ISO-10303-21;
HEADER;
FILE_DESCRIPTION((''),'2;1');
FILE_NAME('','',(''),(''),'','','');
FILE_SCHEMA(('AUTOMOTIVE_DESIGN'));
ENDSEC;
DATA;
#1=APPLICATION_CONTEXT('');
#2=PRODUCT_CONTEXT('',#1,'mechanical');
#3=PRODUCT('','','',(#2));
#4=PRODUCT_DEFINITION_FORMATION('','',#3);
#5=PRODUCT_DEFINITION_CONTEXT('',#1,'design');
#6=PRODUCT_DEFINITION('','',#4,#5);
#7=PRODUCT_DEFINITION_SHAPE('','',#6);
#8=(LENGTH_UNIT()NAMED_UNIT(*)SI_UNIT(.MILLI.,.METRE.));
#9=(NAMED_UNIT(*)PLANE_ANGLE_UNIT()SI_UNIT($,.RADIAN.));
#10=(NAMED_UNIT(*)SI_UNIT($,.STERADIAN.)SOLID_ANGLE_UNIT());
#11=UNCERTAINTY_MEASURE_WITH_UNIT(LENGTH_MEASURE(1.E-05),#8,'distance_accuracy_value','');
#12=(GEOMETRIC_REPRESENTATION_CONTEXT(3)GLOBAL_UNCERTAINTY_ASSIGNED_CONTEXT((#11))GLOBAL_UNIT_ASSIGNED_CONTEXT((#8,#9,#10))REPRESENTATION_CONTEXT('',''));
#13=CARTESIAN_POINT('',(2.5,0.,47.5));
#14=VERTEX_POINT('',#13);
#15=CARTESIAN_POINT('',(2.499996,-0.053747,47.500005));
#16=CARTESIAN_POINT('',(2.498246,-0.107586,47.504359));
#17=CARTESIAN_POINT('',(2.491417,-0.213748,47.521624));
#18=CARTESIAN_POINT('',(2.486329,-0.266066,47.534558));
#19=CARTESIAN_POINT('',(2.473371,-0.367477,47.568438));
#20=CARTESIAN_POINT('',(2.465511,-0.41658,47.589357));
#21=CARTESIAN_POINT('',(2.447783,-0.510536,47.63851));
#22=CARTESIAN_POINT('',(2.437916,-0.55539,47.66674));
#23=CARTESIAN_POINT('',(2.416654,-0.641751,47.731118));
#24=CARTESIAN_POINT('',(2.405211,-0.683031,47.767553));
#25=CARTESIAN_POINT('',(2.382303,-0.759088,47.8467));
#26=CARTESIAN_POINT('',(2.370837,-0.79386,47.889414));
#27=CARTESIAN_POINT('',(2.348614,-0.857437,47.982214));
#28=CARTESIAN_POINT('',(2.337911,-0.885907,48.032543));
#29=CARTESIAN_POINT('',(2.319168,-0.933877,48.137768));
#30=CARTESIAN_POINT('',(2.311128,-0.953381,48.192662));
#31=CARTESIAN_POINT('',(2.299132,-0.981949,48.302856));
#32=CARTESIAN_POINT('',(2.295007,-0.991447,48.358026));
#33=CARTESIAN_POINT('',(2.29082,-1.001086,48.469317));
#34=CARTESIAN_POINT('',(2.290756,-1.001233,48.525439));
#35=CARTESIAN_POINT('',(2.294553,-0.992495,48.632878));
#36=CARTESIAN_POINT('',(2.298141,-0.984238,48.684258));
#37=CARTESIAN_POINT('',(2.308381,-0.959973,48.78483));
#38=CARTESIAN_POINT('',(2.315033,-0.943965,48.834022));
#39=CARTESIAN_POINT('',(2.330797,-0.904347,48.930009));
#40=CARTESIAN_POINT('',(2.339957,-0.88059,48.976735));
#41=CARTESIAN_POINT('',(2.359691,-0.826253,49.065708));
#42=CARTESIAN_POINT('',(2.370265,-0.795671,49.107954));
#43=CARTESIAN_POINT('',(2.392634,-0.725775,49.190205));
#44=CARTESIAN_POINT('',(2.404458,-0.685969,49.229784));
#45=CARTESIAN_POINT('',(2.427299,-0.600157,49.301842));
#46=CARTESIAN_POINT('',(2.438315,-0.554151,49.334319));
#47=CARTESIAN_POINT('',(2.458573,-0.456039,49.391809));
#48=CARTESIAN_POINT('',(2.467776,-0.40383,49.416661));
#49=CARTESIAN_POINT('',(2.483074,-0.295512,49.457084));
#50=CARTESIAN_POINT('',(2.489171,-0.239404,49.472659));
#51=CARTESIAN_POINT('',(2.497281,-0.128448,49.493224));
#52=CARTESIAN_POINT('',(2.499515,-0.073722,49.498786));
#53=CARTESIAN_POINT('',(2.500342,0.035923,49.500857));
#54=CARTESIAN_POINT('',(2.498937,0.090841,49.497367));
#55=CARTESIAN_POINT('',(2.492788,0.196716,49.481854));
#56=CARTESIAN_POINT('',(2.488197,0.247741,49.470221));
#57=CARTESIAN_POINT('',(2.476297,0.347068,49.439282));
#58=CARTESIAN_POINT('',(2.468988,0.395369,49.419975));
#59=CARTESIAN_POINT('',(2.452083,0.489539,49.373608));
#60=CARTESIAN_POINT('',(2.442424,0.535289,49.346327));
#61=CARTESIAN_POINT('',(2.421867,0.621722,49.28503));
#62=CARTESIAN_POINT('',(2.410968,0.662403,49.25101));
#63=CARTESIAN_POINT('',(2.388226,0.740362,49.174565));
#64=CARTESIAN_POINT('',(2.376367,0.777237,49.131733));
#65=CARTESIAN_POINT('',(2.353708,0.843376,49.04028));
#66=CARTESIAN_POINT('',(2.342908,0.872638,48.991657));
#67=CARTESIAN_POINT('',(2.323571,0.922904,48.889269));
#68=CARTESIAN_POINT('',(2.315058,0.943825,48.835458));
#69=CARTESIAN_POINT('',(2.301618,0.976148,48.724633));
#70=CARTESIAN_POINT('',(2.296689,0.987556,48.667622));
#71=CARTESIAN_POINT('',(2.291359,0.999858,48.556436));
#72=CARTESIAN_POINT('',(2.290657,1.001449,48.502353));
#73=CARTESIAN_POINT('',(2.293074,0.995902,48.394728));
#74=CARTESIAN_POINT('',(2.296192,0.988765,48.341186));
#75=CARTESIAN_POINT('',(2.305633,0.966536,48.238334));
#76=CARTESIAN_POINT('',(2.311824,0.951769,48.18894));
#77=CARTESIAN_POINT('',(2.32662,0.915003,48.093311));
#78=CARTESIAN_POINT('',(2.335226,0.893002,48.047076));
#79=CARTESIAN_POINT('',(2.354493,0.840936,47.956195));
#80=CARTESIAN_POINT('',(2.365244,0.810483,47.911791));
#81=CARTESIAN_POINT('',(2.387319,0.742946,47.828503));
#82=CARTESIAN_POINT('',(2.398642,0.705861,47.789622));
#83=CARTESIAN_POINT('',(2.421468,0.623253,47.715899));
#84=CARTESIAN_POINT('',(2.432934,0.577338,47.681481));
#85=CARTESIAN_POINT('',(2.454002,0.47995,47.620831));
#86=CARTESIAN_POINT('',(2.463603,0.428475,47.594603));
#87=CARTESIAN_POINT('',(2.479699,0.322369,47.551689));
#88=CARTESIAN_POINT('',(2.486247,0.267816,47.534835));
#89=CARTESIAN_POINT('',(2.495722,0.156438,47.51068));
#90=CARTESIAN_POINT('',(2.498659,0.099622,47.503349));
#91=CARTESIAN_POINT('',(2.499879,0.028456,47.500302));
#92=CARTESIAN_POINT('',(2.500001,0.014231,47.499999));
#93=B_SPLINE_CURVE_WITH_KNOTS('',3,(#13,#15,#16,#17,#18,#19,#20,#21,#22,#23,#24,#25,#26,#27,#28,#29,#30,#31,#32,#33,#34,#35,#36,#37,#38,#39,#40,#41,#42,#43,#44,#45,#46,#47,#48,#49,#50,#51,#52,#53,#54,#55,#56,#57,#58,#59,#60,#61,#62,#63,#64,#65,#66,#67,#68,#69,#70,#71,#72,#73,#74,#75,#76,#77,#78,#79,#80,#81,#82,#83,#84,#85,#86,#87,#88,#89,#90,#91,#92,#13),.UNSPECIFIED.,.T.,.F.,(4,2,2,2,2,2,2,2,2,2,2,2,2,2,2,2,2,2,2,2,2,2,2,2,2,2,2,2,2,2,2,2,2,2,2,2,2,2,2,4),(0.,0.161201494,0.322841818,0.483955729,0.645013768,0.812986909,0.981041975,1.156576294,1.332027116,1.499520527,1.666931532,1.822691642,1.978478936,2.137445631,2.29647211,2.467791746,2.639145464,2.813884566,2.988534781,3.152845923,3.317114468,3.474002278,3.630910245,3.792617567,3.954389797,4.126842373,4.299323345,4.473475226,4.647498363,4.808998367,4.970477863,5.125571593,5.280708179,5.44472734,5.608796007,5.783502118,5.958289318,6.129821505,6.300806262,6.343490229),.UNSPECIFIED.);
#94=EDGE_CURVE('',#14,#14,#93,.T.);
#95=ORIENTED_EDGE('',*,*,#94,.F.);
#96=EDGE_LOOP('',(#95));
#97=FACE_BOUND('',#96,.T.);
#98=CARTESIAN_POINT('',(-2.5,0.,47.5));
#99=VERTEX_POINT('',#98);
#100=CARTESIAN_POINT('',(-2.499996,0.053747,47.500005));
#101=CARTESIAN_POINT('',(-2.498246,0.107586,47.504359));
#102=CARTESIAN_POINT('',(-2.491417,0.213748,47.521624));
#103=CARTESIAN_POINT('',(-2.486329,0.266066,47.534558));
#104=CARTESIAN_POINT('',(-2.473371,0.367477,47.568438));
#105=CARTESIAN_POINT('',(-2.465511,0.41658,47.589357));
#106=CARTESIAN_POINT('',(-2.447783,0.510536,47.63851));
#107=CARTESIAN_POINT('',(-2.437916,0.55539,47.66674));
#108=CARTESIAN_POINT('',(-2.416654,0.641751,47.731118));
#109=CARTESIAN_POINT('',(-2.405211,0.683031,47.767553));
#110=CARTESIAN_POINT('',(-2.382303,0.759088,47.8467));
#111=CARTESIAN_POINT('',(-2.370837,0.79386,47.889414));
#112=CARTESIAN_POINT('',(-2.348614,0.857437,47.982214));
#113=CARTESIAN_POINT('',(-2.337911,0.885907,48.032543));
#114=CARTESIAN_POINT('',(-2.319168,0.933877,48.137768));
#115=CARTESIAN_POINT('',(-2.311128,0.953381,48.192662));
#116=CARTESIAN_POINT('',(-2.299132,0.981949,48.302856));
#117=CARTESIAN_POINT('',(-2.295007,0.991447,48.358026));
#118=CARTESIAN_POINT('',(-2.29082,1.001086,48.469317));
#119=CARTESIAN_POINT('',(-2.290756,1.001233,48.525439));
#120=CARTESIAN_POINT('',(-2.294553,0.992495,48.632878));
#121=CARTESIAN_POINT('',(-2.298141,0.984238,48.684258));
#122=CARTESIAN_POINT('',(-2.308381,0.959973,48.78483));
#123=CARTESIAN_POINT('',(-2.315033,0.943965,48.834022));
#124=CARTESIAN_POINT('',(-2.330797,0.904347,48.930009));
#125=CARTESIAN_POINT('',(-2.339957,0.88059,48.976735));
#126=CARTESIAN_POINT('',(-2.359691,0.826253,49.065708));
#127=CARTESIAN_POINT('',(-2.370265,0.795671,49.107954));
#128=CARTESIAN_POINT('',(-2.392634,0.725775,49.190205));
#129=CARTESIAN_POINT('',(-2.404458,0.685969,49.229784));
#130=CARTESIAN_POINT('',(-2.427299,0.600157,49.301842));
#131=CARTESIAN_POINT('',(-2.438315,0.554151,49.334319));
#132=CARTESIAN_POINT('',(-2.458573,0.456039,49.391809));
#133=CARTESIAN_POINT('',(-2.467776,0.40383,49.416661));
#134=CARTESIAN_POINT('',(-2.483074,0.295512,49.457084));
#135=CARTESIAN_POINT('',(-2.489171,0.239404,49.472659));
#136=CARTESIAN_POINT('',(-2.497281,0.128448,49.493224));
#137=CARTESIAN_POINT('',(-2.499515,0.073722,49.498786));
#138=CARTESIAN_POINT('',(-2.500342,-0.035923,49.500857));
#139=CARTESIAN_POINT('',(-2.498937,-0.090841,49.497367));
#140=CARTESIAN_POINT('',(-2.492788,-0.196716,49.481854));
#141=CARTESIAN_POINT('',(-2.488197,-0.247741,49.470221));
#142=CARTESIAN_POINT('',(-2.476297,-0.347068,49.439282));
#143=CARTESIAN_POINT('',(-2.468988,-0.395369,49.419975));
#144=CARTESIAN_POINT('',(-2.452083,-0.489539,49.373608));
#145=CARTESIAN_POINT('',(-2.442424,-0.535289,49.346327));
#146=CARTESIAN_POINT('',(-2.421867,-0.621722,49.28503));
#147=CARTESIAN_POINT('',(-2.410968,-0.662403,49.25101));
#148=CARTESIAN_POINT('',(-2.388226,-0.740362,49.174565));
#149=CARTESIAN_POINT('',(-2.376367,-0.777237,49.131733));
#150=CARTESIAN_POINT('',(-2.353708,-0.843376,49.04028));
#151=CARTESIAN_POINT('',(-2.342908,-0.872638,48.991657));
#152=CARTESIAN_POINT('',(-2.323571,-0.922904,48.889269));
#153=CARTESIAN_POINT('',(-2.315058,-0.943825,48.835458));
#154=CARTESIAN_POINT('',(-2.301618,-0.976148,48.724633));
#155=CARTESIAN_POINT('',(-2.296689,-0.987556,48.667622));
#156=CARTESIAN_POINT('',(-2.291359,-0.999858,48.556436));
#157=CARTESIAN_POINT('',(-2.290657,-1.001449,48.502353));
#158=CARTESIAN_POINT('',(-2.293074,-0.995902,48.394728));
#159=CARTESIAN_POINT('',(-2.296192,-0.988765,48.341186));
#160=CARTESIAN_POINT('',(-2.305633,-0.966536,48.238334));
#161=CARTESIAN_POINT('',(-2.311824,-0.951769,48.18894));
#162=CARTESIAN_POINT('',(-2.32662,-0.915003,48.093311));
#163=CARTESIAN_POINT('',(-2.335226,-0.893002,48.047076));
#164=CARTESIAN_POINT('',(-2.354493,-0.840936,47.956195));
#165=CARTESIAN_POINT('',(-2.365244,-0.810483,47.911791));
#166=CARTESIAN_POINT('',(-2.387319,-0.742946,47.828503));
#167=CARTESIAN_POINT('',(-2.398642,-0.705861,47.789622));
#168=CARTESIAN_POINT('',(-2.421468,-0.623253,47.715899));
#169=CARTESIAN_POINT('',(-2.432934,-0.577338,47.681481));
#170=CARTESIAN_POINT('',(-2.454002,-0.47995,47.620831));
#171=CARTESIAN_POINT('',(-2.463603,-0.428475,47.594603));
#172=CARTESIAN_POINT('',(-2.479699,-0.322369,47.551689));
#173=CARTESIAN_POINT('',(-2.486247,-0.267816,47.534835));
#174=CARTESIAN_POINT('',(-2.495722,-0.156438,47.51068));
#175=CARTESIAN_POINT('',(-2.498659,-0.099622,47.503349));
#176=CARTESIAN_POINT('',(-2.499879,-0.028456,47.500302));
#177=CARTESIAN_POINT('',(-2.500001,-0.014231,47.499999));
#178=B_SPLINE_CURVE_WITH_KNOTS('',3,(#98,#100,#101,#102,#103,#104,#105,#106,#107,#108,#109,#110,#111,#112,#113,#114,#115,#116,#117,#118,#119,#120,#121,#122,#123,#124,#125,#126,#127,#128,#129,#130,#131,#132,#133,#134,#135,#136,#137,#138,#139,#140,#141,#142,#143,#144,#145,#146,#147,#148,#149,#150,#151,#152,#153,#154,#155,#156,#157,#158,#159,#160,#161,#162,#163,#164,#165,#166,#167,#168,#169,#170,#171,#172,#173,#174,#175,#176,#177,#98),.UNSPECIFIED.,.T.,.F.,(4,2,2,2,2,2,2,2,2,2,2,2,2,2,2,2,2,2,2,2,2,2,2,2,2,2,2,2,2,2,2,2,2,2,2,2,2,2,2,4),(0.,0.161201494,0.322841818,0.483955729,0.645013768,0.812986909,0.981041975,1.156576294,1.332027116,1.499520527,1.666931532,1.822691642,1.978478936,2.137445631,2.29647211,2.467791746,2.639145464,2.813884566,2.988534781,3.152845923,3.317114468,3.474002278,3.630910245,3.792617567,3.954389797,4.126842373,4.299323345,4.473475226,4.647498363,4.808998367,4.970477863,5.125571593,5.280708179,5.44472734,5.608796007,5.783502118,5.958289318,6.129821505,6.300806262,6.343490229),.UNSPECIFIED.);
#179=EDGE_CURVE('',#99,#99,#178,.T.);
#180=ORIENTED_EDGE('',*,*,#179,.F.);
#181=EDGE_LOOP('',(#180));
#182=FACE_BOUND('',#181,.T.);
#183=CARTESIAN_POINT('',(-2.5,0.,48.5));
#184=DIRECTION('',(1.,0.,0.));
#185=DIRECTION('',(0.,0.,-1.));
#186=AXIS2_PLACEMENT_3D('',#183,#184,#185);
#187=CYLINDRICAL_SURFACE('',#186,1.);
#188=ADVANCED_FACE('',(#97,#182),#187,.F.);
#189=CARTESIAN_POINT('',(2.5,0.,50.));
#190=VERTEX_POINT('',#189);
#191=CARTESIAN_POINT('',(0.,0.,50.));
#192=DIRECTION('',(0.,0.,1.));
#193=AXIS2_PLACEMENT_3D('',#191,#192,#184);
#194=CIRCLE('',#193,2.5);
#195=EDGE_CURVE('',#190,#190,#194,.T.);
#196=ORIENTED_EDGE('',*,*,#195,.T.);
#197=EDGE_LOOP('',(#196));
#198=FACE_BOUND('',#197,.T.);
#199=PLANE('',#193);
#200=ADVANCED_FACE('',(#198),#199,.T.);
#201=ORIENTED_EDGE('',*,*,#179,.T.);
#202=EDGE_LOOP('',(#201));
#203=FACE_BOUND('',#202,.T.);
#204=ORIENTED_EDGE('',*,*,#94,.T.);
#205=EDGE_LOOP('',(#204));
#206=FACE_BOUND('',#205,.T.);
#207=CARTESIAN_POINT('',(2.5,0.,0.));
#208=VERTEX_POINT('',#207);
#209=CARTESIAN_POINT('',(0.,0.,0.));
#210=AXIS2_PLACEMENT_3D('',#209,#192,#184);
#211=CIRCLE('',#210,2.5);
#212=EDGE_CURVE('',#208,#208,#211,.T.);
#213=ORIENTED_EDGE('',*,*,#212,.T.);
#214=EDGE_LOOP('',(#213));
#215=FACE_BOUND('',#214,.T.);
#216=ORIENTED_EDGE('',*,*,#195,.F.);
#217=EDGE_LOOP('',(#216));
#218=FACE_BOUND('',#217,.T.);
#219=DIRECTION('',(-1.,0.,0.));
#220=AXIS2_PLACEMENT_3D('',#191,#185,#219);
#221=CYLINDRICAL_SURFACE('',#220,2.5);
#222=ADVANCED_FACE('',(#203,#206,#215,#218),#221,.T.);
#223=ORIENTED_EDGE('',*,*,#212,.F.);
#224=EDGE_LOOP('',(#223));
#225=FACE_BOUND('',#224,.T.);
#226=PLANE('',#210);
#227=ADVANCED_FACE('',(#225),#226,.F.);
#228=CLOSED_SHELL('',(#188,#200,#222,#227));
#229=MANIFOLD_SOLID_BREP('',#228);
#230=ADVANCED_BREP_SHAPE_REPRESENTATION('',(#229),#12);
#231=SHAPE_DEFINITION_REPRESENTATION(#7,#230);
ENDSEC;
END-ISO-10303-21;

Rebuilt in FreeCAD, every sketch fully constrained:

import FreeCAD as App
import Part
import Sketcher
from FreeCAD import Vector
Q = App.Units.Quantity

doc = App.newDocument("Part")
body = doc.addObject("PartDesign::Body", "Body")

sketch1 = body.newObject("Sketcher::SketchObject", "Sketch")
sketch1.AttachmentSupport = (doc.getObject("XY_Plane"), [""])
sketch1.MapMode = "FlatFace"
sketch1.addGeometry(Part.Circle(Vector(0, 0, 0), Vector(0, 0, 1), 2.5), False)
sketch1.addConstraint(Sketcher.Constraint("Coincident", 0, 3, -1, 1))
sketch1.addConstraint(Sketcher.Constraint("Diameter", 0, Q("5 mm")))
pad1 = body.newObject("PartDesign::Pad", "Pad")
pad1.Profile = sketch1
pad1.Length = 50

sketch2 = body.newObject("Sketcher::SketchObject", "Sketch001")
sketch2.AttachmentSupport = (doc.getObject("YZ_Plane"), [""])
sketch2.MapMode = "FlatFace"
sketch2.addGeometry(Part.Circle(Vector(0, 48.5, 0), Vector(0, 0, 1), 1), False)
sketch2.addConstraint(Sketcher.Constraint("PointOnObject", 0, 3, -2))
sketch2.addConstraint(Sketcher.Constraint("Diameter", 0, Q("2 mm")))
sketch2.addConstraint(Sketcher.Constraint("DistanceY", -1, 1, 0, 3, Q("48.5 mm")))
pocket1 = body.newObject("PartDesign::Pocket", "Pocket")
pocket1.Profile = sketch2
pocket1.Type = "ThroughAll"
pocket1.Midplane = True

doc.recompute()
